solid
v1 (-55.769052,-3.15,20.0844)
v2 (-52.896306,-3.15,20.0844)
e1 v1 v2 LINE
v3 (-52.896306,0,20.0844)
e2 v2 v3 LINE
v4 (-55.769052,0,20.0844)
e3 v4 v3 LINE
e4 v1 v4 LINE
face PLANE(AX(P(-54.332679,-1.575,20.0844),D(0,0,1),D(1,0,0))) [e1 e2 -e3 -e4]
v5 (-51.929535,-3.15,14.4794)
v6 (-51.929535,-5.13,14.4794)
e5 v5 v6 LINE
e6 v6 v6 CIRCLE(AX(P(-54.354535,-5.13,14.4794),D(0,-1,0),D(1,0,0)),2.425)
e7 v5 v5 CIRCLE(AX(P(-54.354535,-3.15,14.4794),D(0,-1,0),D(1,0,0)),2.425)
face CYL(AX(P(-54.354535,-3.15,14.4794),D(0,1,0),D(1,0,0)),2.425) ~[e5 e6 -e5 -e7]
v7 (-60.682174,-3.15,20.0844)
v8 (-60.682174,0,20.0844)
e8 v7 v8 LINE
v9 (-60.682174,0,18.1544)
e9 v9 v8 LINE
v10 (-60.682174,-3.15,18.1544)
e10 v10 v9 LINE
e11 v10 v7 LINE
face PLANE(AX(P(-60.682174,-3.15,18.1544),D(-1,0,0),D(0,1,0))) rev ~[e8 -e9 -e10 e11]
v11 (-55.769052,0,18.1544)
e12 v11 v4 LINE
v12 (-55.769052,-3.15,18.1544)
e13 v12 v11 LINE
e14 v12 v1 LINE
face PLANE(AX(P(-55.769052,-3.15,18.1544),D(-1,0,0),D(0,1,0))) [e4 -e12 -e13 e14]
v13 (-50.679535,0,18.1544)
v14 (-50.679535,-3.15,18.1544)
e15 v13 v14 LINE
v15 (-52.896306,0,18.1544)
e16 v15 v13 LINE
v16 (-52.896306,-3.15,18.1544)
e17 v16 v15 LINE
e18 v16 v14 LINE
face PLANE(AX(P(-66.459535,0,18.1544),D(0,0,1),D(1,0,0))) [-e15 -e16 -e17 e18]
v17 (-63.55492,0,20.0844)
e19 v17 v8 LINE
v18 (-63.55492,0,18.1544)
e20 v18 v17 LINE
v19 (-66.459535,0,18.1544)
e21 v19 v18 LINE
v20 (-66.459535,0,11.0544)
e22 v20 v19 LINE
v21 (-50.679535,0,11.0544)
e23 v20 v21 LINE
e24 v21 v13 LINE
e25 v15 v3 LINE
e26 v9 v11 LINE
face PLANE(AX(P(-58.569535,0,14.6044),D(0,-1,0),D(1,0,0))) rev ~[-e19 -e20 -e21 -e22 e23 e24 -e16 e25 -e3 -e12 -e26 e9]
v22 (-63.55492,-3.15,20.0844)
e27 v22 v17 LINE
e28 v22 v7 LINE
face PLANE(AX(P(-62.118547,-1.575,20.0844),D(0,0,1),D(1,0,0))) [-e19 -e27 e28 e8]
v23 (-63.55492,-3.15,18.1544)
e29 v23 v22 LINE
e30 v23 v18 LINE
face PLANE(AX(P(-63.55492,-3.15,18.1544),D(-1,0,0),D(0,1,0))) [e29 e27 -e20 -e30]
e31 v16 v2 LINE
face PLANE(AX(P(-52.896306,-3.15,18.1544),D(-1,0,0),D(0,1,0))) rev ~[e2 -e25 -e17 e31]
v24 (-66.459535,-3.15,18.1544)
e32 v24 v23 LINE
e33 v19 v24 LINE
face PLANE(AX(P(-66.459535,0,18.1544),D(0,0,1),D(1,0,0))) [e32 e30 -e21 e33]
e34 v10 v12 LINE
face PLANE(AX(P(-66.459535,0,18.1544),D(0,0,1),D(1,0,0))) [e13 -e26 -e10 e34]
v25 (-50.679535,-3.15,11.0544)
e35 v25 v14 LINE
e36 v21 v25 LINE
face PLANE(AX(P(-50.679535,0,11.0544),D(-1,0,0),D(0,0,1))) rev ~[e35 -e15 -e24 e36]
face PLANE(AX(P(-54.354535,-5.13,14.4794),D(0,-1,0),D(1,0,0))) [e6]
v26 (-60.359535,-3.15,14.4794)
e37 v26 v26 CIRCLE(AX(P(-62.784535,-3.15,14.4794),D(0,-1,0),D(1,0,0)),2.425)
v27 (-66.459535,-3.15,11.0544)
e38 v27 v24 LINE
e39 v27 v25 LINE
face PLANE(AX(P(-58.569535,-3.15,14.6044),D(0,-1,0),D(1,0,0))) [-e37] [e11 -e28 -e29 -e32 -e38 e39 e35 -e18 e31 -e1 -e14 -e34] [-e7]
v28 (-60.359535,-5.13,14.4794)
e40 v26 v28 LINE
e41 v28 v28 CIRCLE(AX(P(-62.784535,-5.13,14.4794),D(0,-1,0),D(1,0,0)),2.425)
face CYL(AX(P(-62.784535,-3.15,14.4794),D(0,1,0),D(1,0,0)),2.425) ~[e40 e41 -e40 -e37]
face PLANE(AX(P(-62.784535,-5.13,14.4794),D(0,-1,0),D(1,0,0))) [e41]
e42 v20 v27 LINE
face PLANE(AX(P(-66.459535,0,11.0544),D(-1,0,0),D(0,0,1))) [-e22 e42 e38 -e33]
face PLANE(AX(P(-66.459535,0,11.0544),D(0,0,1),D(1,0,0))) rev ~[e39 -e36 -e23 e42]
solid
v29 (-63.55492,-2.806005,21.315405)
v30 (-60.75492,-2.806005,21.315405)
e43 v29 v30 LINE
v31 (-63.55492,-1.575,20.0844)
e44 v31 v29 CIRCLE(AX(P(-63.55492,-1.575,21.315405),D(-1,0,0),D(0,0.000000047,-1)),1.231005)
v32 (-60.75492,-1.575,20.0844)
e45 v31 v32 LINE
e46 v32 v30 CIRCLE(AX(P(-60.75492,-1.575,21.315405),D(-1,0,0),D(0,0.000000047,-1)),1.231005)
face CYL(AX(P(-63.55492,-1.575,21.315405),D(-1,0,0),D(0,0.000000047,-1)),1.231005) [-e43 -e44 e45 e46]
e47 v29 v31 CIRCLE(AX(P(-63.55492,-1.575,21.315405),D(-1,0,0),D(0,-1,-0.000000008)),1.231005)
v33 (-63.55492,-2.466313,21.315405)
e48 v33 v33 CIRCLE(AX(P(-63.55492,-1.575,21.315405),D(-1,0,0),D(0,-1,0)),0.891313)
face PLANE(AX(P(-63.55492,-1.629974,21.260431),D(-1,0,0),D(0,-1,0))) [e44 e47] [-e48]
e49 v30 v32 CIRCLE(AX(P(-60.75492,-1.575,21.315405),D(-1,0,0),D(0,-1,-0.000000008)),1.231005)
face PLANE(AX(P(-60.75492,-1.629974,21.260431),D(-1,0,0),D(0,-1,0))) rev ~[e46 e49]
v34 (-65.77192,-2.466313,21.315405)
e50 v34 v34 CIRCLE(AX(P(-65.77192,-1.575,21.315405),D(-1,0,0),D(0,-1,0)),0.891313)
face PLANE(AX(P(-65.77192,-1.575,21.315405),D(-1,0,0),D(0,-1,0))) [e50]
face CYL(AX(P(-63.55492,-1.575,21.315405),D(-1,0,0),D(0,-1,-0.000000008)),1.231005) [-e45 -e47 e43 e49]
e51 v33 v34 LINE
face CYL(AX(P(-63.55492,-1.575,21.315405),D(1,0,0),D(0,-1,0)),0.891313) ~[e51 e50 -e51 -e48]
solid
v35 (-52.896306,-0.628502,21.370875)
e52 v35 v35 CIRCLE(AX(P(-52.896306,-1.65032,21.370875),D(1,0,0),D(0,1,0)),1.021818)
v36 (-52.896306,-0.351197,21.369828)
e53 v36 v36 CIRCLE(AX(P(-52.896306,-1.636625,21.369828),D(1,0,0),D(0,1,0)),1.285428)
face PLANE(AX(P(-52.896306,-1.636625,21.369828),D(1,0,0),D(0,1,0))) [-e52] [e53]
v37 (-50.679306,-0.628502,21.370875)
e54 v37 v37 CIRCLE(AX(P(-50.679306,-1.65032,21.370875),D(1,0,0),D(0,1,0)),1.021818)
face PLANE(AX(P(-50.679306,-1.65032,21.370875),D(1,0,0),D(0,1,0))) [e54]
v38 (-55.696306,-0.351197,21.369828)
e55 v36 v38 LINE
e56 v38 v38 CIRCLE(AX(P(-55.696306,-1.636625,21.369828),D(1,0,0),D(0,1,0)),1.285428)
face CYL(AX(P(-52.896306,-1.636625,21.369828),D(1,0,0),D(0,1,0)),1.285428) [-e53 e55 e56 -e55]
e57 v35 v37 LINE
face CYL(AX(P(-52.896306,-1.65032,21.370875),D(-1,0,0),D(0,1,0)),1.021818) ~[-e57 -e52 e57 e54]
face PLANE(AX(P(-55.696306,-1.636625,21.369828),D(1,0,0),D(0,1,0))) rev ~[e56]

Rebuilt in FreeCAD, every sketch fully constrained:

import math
import FreeCAD as App
import Part
import Sketcher

V = App.Vector

doc = App.newDocument("Part")
params = doc.addObject("Spreadsheet::Sheet", "Params")
for row, (alias, value) in enumerate([
    ("sketch1_height", "7.1 mm"),
    ("sketch1_width", "15.78 mm"),
    ("pad1_length", "3.15 mm"),
    ("sketch2_diameter", "4.85 mm"),
    ("pad2_length", "1.98 mm"),
    ("sketch3_height", "3.15 mm"),
    ("pad3_length", "1.93 mm"),
    ("pad4_length", "2.8 mm"),
    ("pad5_length", "2.217 mm"),
    ("pad6_length", "2.8 mm"),
    ("pad7_length", "2.217 mm"),
], start=1):
    params.set(f"A{row}", alias)
    params.set(f"B{row}", "=" + value)
    params.setAlias(f"B{row}", alias)

body = doc.addObject("PartDesign::Body", "Body")

sketch1 = doc.addObject("Sketcher::SketchObject", "Sketch")
body.addObject(sketch1)
sketch1.AttachmentSupport = (doc.XZ_Plane, [""])
sketch1.MapMode = "FlatFace"
sketch1.addGeometry([
    Part.LineSegment(V(-66, 18, 0), V(-66, 11, 0)),
    Part.LineSegment(V(-66, 11, 0), V(-51, 11, 0)),
    Part.LineSegment(V(-51, 11, 0), V(-51, 18, 0)),
    Part.LineSegment(V(-51, 18, 0), V(-66, 18, 0)),
], False)
sketch1.addConstraint([
    Sketcher.Constraint("Coincident", 0, 2, 1, 1),
    Sketcher.Constraint("Coincident", 1, 2, 2, 1),
    Sketcher.Constraint("Coincident", 2, 2, 3, 1),
    Sketcher.Constraint("Coincident", 3, 2, 0, 1),
    Sketcher.Constraint("Vertical", 0),
    Sketcher.Constraint("Horizontal", 1),
    Sketcher.Constraint("Vertical", 2),
    Sketcher.Constraint("Horizontal", 3),
    Sketcher.Constraint("DistanceY", 0, 2, 0, 1, 7.1),
    Sketcher.Constraint("DistanceX", 1, 1, 1, 2, 15.78),
    Sketcher.Constraint("DistanceY", -1, 1, 0, 2, 11.0544),
    Sketcher.Constraint("DistanceX", 0, 2, -1, 1, 66.459535),
])
sketch1.setExpression("Constraints[8]", "Params.sketch1_height")
sketch1.setExpression("Constraints[9]", "Params.sketch1_width")
pad1 = doc.addObject("PartDesign::Pad", "Pad")
body.addObject(pad1)
pad1.Profile = sketch1
pad1.setExpression("Length", "Params.pad1_length")

sketch2 = doc.addObject("Sketcher::SketchObject", "Sketch001")
body.addObject(sketch2)
sketch2.AttachmentSupport = (doc.XZ_Plane, [""])
sketch2.MapMode = "FlatFace"
sketch2.AttachmentOffset = App.Placement(V(0, 0, 3.15), App.Rotation())
sketch2.addGeometry([
    Part.Circle(V(-62.8, 14.5, 0), V(0, 0, 1), 2.4),
    Part.Circle(V(-54.4, 14.5, 0), V(0, 0, 1), 2.4),
], False)
sketch2.addConstraint([
    Sketcher.Constraint("Equal", 0, 1),
    Sketcher.Constraint("Horizontal", 0, 3, 1, 3),
    Sketcher.Constraint("Diameter", 0, 4.85),
    Sketcher.Constraint("DistanceX", 0, 3, 1, 3, 8.43),
    Sketcher.Constraint("DistanceY", -1, 1, 0, 3, 14.4794),
    Sketcher.Constraint("DistanceX", 0, 3, -1, 1, 62.784535),
])
sketch2.setExpression("Constraints[2]", "Params.sketch2_diameter")
pad2 = doc.addObject("PartDesign::Pad", "Pad001")
body.addObject(pad2)
pad2.Profile = sketch2
pad2.setExpression("Length", "Params.pad2_length")

sketch3 = doc.addObject("Sketcher::SketchObject", "Sketch002")
body.addObject(sketch3)
sketch3.AttachmentSupport = (doc.XY_Plane, [""])
sketch3.MapMode = "FlatFace"
sketch3.AttachmentOffset = App.Placement(V(0, 0, 18.1544), App.Rotation())
sketch3.addGeometry([
    Part.LineSegment(V(-63.6, 0, 0), V(-63.6, -3.1, 0)),
    Part.LineSegment(V(-63.6, -3.1, 0), V(-60.7, -3.1, 0)),
    Part.LineSegment(V(-60.7, -3.1, 0), V(-60.7, 0, 0)),
    Part.LineSegment(V(-60.7, 0, 0), V(-63.6, 0, 0)),
    Part.LineSegment(V(-55.8, 0, 0), V(-55.8, -3.1, 0)),
    Part.LineSegment(V(-55.8, -3.1, 0), V(-52.9, -3.1, 0)),
    Part.LineSegment(V(-52.9, -3.1, 0), V(-52.9, 0, 0)),
    Part.LineSegment(V(-52.9, 0, 0), V(-55.8, 0, 0)),
], False)
sketch3.addConstraint([
    Sketcher.Constraint("Coincident", 0, 2, 1, 1),
    Sketcher.Constraint("Coincident", 1, 2, 2, 1),
    Sketcher.Constraint("Coincident", 2, 2, 3, 1),
    Sketcher.Constraint("Coincident", 3, 2, 0, 1),
    Sketcher.Constraint("Coincident", 4, 2, 5, 1),
    Sketcher.Constraint("Coincident", 5, 2, 6, 1),
    Sketcher.Constraint("Coincident", 6, 2, 7, 1),
    Sketcher.Constraint("Coincident", 7, 2, 4, 1),
    Sketcher.Constraint("Vertical", 0),
    Sketcher.Constraint("Horizontal", 1),
    Sketcher.Constraint("Vertical", 2),
    Sketcher.Constraint("Horizontal", 3),
    Sketcher.Constraint("Vertical", 4),
    Sketcher.Constraint("Horizontal", 5),
    Sketcher.Constraint("Vertical", 6),
    Sketcher.Constraint("Horizontal", 7),
    Sketcher.Constraint("PointOnObject", 2, 2, -1),
    Sketcher.Constraint("PointOnObject", 6, 2, -1),
    Sketcher.Constraint("Horizontal", 1, 2, 4, 2),
    Sketcher.Constraint("Equal", 3, 5),
    Sketcher.Constraint("DistanceY", 0, 2, 0, 1, 3.15),
    Sketcher.Constraint("DistanceX", 1, 1, 1, 2, 2.872746),
    Sketcher.Constraint("DistanceX", 0, 2, -1, 1, 63.55492),
    Sketcher.Constraint("DistanceX", 0, 2, 4, 2, 7.785868),
])
sketch3.setExpression("Constraints[20]", "Params.sketch3_height")
pad3 = doc.addObject("PartDesign::Pad", "Pad002")
body.addObject(pad3)
pad3.Profile = sketch3
pad3.setExpression("Length", "Params.pad3_length")
body2 = doc.addObject("PartDesign::Body", "Body001")

sketch4 = doc.addObject("Sketcher::SketchObject", "Sketch003")
body2.addObject(sketch4)
sketch4.AttachmentSupport = (doc.getObject("YZ_Plane001"), [""])
sketch4.MapMode = "FlatFace"
sketch4.AttachmentOffset = App.Placement(V(0, 0, -52.896306), App.Rotation())
sketch4.addGeometry(Part.Circle(V(-1.6, 21.4, 0), V(0, 0, 1), 1.3), False)
sketch4.addConstraint([
    Sketcher.Constraint("Diameter", 0, 2.570856),
    Sketcher.Constraint("DistanceX", 0, 3, -1, 1, 1.636625),
    Sketcher.Constraint("DistanceY", -1, 1, 0, 3, 21.369828),
])
pad4 = doc.addObject("PartDesign::Pad", "Pad003")
body2.addObject(pad4)
pad4.Profile = sketch4
pad4.setExpression("Length", "Params.pad4_length")
pad4.Reversed = True

sketch5 = doc.addObject("Sketcher::SketchObject", "Sketch004")
body2.addObject(sketch5)
sketch5.AttachmentSupport = (doc.getObject("YZ_Plane001"), [""])
sketch5.MapMode = "FlatFace"
sketch5.AttachmentOffset = App.Placement(V(0, 0, -52.896306), App.Rotation())
sketch5.addGeometry(Part.Circle(V(-1.7, 21.4, 0), V(0, 0, 1), 1), False)
sketch5.addConstraint([
    Sketcher.Constraint("Diameter", 0, 2.043636),
    Sketcher.Constraint("DistanceX", 0, 3, -1, 1, 1.65032),
    Sketcher.Constraint("DistanceY", -1, 1, 0, 3, 21.370875),
])
pad5 = doc.addObject("PartDesign::Pad", "Pad004")
body2.addObject(pad5)
pad5.Profile = sketch5
pad5.setExpression("Length", "Params.pad5_length")
body3 = doc.addObject("PartDesign::Body", "Body002")

sketch6 = doc.addObject("Sketcher::SketchObject", "Sketch005")
body3.addObject(sketch6)
sketch6.AttachmentSupport = (doc.getObject("YZ_Plane002"), [""])
sketch6.MapMode = "FlatFace"
sketch6.AttachmentOffset = App.Placement(V(0, 0, -63.55492), App.Rotation())
sketch6.addGeometry([
    Part.ArcOfCircle(Part.Circle(V(-1.6, 21.3, 0), V(0, 0, 1), 1.2), math.radians(180), math.radians(270)),
    Part.ArcOfCircle(Part.Circle(V(-1.6, 21.3, 0), V(0, 0, 1), 1.2), math.radians(-90), math.radians(180)),
], False)
sketch6.addConstraint([
    Sketcher.Constraint("Tangent", 0, 1, 1, 2),
    Sketcher.Constraint("Coincident", 1, 1, 0, 2),
    Sketcher.Constraint("Horizontal", 1, 3, 0, 1),
    Sketcher.Constraint("Vertical", 0, 3, 1, 1),
    Sketcher.Constraint("DistanceX", 0, 3, -1, 1, 1.575),
    Sketcher.Constraint("Radius", 0, 1.231005),
    Sketcher.Constraint("DistanceY", -1, 1, 1, 1, 20.0844),
])
pad6 = doc.addObject("PartDesign::Pad", "Pad005")
body3.addObject(pad6)
pad6.Profile = sketch6
pad6.setExpression("Length", "Params.pad6_length")

sketch7 = doc.addObject("Sketcher::SketchObject", "Sketch006")
body3.addObject(sketch7)
sketch7.AttachmentSupport = (doc.getObject("YZ_Plane002"), [""])
sketch7.MapMode = "FlatFace"
sketch7.AttachmentOffset = App.Placement(V(0, 0, -63.55492), App.Rotation())
sketch7.addGeometry(Part.Circle(V(-1.6, 21.3, 0), V(0, 0, 1), 0.9), False)
sketch7.addConstraint([
    Sketcher.Constraint("Diameter", 0, 1.782626),
    Sketcher.Constraint("DistanceX", 0, 3, -1, 1, 1.575),
    Sketcher.Constraint("DistanceY", -1, 1, 0, 3, 21.315405),
])
pad7 = doc.addObject("PartDesign::Pad", "Pad006")
body3.addObject(pad7)
pad7.Profile = sketch7
pad7.setExpression("Length", "Params.pad7_length")
pad7.Reversed = True

doc.recompute()
